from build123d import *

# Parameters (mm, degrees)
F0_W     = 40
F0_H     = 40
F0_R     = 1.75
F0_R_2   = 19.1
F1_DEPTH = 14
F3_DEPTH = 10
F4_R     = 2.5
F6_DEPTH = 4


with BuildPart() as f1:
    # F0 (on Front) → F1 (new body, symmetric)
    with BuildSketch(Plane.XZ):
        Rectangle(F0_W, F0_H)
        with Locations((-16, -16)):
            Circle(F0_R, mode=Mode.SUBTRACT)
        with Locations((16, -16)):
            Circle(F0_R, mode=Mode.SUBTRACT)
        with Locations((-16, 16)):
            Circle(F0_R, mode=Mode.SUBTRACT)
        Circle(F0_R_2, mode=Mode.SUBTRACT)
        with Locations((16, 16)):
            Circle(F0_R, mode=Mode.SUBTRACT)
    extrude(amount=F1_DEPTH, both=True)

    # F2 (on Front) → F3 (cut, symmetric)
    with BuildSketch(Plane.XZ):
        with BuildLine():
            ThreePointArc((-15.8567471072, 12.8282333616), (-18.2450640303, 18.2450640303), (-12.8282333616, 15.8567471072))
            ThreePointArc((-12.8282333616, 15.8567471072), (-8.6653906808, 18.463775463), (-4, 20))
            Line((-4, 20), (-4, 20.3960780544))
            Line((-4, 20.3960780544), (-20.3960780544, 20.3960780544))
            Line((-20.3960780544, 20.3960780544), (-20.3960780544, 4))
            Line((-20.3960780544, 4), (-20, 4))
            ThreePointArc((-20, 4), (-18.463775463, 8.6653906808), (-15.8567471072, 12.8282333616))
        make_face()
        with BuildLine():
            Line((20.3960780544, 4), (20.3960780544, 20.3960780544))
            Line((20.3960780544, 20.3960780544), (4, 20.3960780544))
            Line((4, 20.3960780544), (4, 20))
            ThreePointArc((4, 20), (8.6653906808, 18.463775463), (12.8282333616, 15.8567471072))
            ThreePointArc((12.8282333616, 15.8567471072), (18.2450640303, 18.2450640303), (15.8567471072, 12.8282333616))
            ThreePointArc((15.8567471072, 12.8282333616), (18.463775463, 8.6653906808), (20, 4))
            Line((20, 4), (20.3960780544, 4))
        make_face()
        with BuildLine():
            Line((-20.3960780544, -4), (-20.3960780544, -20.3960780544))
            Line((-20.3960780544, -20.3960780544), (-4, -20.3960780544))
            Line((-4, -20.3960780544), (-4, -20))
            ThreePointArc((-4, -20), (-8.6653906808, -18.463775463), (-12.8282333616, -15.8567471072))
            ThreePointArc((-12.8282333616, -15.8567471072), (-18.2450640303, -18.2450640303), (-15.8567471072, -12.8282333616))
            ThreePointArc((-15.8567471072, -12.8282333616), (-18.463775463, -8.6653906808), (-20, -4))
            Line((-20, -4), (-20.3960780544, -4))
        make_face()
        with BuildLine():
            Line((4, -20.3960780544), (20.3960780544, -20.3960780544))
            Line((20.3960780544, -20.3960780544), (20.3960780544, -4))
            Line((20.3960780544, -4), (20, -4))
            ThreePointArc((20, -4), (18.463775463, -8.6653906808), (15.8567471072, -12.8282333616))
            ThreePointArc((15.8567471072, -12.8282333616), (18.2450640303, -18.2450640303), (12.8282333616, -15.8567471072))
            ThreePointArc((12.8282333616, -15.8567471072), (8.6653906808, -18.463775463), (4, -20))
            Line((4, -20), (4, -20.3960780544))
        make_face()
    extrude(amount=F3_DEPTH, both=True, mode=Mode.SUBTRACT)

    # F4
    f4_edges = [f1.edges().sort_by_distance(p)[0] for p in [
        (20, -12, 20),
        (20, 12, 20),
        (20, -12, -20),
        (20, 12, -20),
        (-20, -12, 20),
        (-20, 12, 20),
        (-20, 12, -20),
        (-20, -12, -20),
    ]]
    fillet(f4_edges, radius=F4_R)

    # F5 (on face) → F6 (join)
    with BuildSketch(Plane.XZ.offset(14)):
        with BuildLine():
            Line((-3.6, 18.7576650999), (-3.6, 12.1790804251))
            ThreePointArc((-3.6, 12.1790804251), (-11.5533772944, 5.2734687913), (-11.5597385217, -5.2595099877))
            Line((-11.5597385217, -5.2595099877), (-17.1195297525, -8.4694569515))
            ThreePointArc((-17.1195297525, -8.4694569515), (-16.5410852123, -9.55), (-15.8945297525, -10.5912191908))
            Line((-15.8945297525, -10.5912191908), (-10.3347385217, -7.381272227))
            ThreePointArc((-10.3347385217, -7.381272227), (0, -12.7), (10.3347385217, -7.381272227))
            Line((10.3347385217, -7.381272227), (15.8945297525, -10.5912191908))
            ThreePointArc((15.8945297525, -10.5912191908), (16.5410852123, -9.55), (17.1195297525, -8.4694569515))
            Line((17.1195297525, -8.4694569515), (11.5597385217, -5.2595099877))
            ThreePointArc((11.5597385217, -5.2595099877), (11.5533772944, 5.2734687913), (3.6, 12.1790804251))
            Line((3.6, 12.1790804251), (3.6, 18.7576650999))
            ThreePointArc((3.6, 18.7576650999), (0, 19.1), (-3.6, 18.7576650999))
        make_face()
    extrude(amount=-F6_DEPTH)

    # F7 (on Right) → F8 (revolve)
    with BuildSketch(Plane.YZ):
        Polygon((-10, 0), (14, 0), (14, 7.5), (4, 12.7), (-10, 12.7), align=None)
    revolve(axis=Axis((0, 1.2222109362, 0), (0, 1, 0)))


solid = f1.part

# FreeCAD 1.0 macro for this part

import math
import FreeCAD as App
import Part
import Sketcher
Q = App.Units.Quantity


def edges_at(feature, points):
    """Names of the edges that pass closest to the given points."""
    edges = feature.Shape.Edges
    near = lambda p: min(range(len(edges)), key=lambda i: edges[i].distToShape(Part.Vertex(*p))[0])
    return sorted({f"Edge{near(p) + 1}" for p in points})


def add_polygon(sketch, points):
    """Adds a closed chain of lines whose ends are joined by coincident constraints."""
    first, n = sketch.GeometryCount, len(points)
    for a, b in zip(points, points[1:] + points[:1]):
        sketch.addGeometry(Part.LineSegment(App.Vector(*a, 0), App.Vector(*b, 0)), False)
    for i in range(n):
        sketch.addConstraint(Sketcher.Constraint("Coincident", first + i, 2, first + (i + 1) % n, 1))

doc = App.newDocument("Part")
body = doc.addObject("PartDesign::Body", "Body")

sketch1 = body.newObject("Sketcher::SketchObject", "Sketch")
sketch1.AttachmentSupport = (doc.getObject("XZ_Plane"), [""])
sketch1.MapMode = "FlatFace"
add_polygon(sketch1, [(-20, 20), (-20, -20), (20, -20), (20, 20)])
sketch1.addGeometry(Part.Circle(App.Vector(-16, -16, 0), App.Vector(0, 0, 1), 1.8), False)
sketch1.addGeometry(Part.Circle(App.Vector(0, 0, 0), App.Vector(0, 0, 1), 19.1), False)
sketch1.addGeometry(Part.Circle(App.Vector(16, -16, 0), App.Vector(0, 0, 1), 1.8), False)
sketch1.addGeometry(Part.Circle(App.Vector(-16, 16, 0), App.Vector(0, 0, 1), 1.8), False)
sketch1.addGeometry(Part.Circle(App.Vector(16, 16, 0), App.Vector(0, 0, 1), 1.8), False)
sketch1.addConstraint(Sketcher.Constraint("Vertical", 0))
sketch1.addConstraint(Sketcher.Constraint("Horizontal", 1))
sketch1.addConstraint(Sketcher.Constraint("Vertical", 2))
sketch1.addConstraint(Sketcher.Constraint("Horizontal", 3))
sketch1.addConstraint(Sketcher.Constraint("Coincident", 5, 3, -1, 1))
sketch1.addConstraint(Sketcher.Constraint("Equal", 4, 6))
sketch1.addConstraint(Sketcher.Constraint("Equal", 6, 7))
sketch1.addConstraint(Sketcher.Constraint("Equal", 7, 8))
sketch1.addConstraint(Sketcher.Constraint("Symmetric", 6, 3, 7, 3, -1, 1))
sketch1.addConstraint(Sketcher.Constraint("Symmetric", 4, 3, 8, 3, -1, 1))
sketch1.addConstraint(Sketcher.Constraint("Symmetric", 0, 2, 2, 2, -1, 1))
sketch1.addConstraint(Sketcher.Constraint("Symmetric", 4, 3, 6, 3, -2))
sketch1.addConstraint(Sketcher.Constraint("Equal", 3, 0))
sketch1.addConstraint(Sketcher.Constraint("Diameter", 4, Q("3.5 mm")))
sketch1.addConstraint(Sketcher.Constraint("Diameter", 5, Q("38.2 mm")))
sketch1.addConstraint(Sketcher.Constraint("DistanceX", 1, 1, 1, 2, Q("40 mm")))
sketch1.addConstraint(Sketcher.Constraint("DistanceX", 4, 3, -1, 1, Q("16 mm")))
sketch1.addConstraint(Sketcher.Constraint("DistanceY", 4, 3, -1, 1, Q("16 mm")))
pad1 = body.newObject("PartDesign::Pad", "Pad")
pad1.Profile = sketch1
pad1.Length = 28
pad1.Midplane = True

sketch2 = body.newObject("Sketcher::SketchObject", "Sketch001")
sketch2.AttachmentSupport = (doc.getObject("XZ_Plane"), [""])
sketch2.MapMode = "FlatFace"
sketch2.addGeometry(Part.ArcOfCircle(Part.Circle(App.Vector(-16, 16, 0), App.Vector(0, 0, 1), 3.17), math.radians(-3), math.radians(273)), False)
sketch2.addGeometry(Part.ArcOfCircle(Part.Circle(App.Vector(0, 0, 0), App.Vector(0, 0, 1), 20.4), math.radians(101), math.radians(129)), False)
sketch2.addGeometry(Part.LineSegment(App.Vector(-4, 20, 0), App.Vector(-4, 20.4, 0)), False)
sketch2.addGeometry(Part.LineSegment(App.Vector(-4, 20.4, 0), App.Vector(-20.4, 20.4, 0)), False)
sketch2.addGeometry(Part.LineSegment(App.Vector(-20.4, 20.4, 0), App.Vector(-20.4, 4, 0)), False)
sketch2.addGeometry(Part.LineSegment(App.Vector(-20.4, 4, 0), App.Vector(-20, 4, 0)), False)
sketch2.addGeometry(Part.ArcOfCircle(Part.Circle(App.Vector(0, 0, 0), App.Vector(0, 0, 1), 20.4), math.radians(141), math.radians(169)), False)
sketch2.addGeometry(Part.LineSegment(App.Vector(20.4, 4, 0), App.Vector(20.4, 20.4, 0)), False)
sketch2.addGeometry(Part.LineSegment(App.Vector(20.4, 20.4, 0), App.Vector(4, 20.4, 0)), False)
sketch2.addGeometry(Part.LineSegment(App.Vector(4, 20.4, 0), App.Vector(4, 20, 0)), False)
sketch2.addGeometry(Part.ArcOfCircle(Part.Circle(App.Vector(0, 0, 0), App.Vector(0, 0, 1), 20.4), math.radians(51), math.radians(79)), False)
sketch2.addGeometry(Part.ArcOfCircle(Part.Circle(App.Vector(16, 16, 0), App.Vector(0, 0, 1), 3.17), math.radians(-93), math.radians(183)), False)
sketch2.addGeometry(Part.ArcOfCircle(Part.Circle(App.Vector(0, 0, 0), App.Vector(0, 0, 1), 20.4), math.radians(11), math.radians(39)), False)
sketch2.addGeometry(Part.LineSegment(App.Vector(20, 4, 0), App.Vector(20.4, 4, 0)), False)
sketch2.addGeometry(Part.LineSegment(App.Vector(-20.4, -4, 0), App.Vector(-20.4, -20.4, 0)), False)
sketch2.addGeometry(Part.LineSegment(App.Vector(-20.4, -20.4, 0), App.Vector(-4, -20.4, 0)), False)
sketch2.addGeometry(Part.LineSegment(App.Vector(-4, -20.4, 0), App.Vector(-4, -20, 0)), False)
sketch2.addGeometry(Part.ArcOfCircle(Part.Circle(App.Vector(0, 0, 0), App.Vector(0, 0, 1), 20.4), math.radians(-129), math.radians(-101)), False)
sketch2.addGeometry(Part.ArcOfCircle(Part.Circle(App.Vector(-16, -16, 0), App.Vector(0, 0, 1), 3.17), math.radians(87), math.radians(363)), False)
sketch2.addGeometry(Part.ArcOfCircle(Part.Circle(App.Vector(0, 0, 0), App.Vector(0, 0, 1), 20.4), math.radians(-169), math.radians(-141)), False)
sketch2.addGeometry(Part.LineSegment(App.Vector(-20, -4, 0), App.Vector(-20.4, -4, 0)), False)
sketch2.addGeometry(Part.LineSegment(App.Vector(4, -20.4, 0), App.Vector(20.4, -20.4, 0)), False)
sketch2.addGeometry(Part.LineSegment(App.Vector(20.4, -20.4, 0), App.Vector(20.4, -4, 0)), False)
sketch2.addGeometry(Part.LineSegment(App.Vector(20.4, -4, 0), App.Vector(20, -4, 0)), False)
sketch2.addGeometry(Part.ArcOfCircle(Part.Circle(App.Vector(0, 0, 0), App.Vector(0, 0, 1), 20.4), math.radians(-39), math.radians(-11)), False)
sketch2.addGeometry(Part.ArcOfCircle(Part.Circle(App.Vector(16, -16, 0), App.Vector(0, 0, 1), 3.17), math.radians(177), math.radians(453)), False)
sketch2.addGeometry(Part.ArcOfCircle(Part.Circle(App.Vector(0, 0, 0), App.Vector(0, 0, 1), 20.4), math.radians(-79), math.radians(-51)), False)
sketch2.addGeometry(Part.LineSegment(App.Vector(4, -20, 0), App.Vector(4, -20.4, 0)), False)
sketch2.addConstraint(Sketcher.Constraint("Coincident", 0, 1, 1, 2))
sketch2.addConstraint(Sketcher.Constraint("Coincident", 1, 1, 2, 1))
sketch2.addConstraint(Sketcher.Constraint("Coincident", 2, 2, 3, 1))
sketch2.addConstraint(Sketcher.Constraint("Coincident", 3, 2, 4, 1))
sketch2.addConstraint(Sketcher.Constraint("Coincident", 4, 2, 5, 1))
sketch2.addConstraint(Sketcher.Constraint("Coincident", 5, 2, 6, 2))
sketch2.addConstraint(Sketcher.Constraint("Coincident", 6, 1, 0, 2))
sketch2.addConstraint(Sketcher.Constraint("Coincident", 7, 2, 8, 1))
sketch2.addConstraint(Sketcher.Constraint("Coincident", 8, 2, 9, 1))
sketch2.addConstraint(Sketcher.Constraint("Coincident", 9, 2, 10, 2))
sketch2.addConstraint(Sketcher.Constraint("Coincident", 10, 1, 11, 2))
sketch2.addConstraint(Sketcher.Constraint("Coincident", 11, 1, 12, 2))
sketch2.addConstraint(Sketcher.Constraint("Coincident", 12, 1, 13, 1))
sketch2.addConstraint(Sketcher.Constraint("Coincident", 13, 2, 7, 1))
sketch2.addConstraint(Sketcher.Constraint("Coincident", 14, 2, 15, 1))
sketch2.addConstraint(Sketcher.Constraint("Coincident", 15, 2, 16, 1))
sketch2.addConstraint(Sketcher.Constraint("Coincident", 16, 2, 17, 2))
sketch2.addConstraint(Sketcher.Constraint("Coincident", 17, 1, 18, 2))
sketch2.addConstraint(Sketcher.Constraint("Coincident", 18, 1, 19, 2))
sketch2.addConstraint(Sketcher.Constraint("Coincident", 19, 1, 20, 1))
sketch2.addConstraint(Sketcher.Constraint("Coincident", 20, 2, 14, 1))
sketch2.addConstraint(Sketcher.Constraint("Coincident", 21, 2, 22, 1))
sketch2.addConstraint(Sketcher.Constraint("Coincident", 22, 2, 23, 1))
sketch2.addConstraint(Sketcher.Constraint("Coincident", 23, 2, 24, 2))
sketch2.addConstraint(Sketcher.Constraint("Coincident", 24, 1, 25, 2))
sketch2.addConstraint(Sketcher.Constraint("Coincident", 25, 1, 26, 2))
sketch2.addConstraint(Sketcher.Constraint("Coincident", 26, 1, 27, 1))
sketch2.addConstraint(Sketcher.Constraint("Coincident", 27, 2, 21, 1))
sketch2.addConstraint(Sketcher.Constraint("Vertical", 2))
sketch2.addConstraint(Sketcher.Constraint("Horizontal", 3))
sketch2.addConstraint(Sketcher.Constraint("Vertical", 4))
sketch2.addConstraint(Sketcher.Constraint("Horizontal", 5))
sketch2.addConstraint(Sketcher.Constraint("Vertical", 7))
sketch2.addConstraint(Sketcher.Constraint("Horizontal", 8))
sketch2.addConstraint(Sketcher.Constraint("Vertical", 9))
sketch2.addConstraint(Sketcher.Constraint("Horizontal", 13))
sketch2.addConstraint(Sketcher.Constraint("Vertical", 14))
sketch2.addConstraint(Sketcher.Constraint("Horizontal", 15))
sketch2.addConstraint(Sketcher.Constraint("Vertical", 16))
sketch2.addConstraint(Sketcher.Constraint("Horizontal", 20))
sketch2.addConstraint(Sketcher.Constraint("Horizontal", 21))
sketch2.addConstraint(Sketcher.Constraint("Vertical", 22))
sketch2.addConstraint(Sketcher.Constraint("Horizontal", 23))
sketch2.addConstraint(Sketcher.Constraint("Vertical", 27))
sketch2.addConstraint(Sketcher.Constraint("Coincident", 1, 3, -1, 1))
sketch2.addConstraint(Sketcher.Constraint("Coincident", 6, 3, -1, 1))
sketch2.addConstraint(Sketcher.Constraint("Coincident", 10, 3, -1, 1))
sketch2.addConstraint(Sketcher.Constraint("Coincident", 12, 3, -1, 1))
sketch2.addConstraint(Sketcher.Constraint("Coincident", 17, 3, -1, 1))
sketch2.addConstraint(Sketcher.Constraint("Coincident", 19, 3, -1, 1))
sketch2.addConstraint(Sketcher.Constraint("Coincident", 24, 3, -1, 1))
sketch2.addConstraint(Sketcher.Constraint("Coincident", 26, 3, -1, 1))
sketch2.addConstraint(Sketcher.Constraint("Equal", 1, 6))
sketch2.addConstraint(Sketcher.Constraint("Equal", 6, 10))
sketch2.addConstraint(Sketcher.Constraint("Equal", 0, 11))
sketch2.addConstraint(Sketcher.Constraint("Equal", 10, 12))
sketch2.addConstraint(Sketcher.Constraint("Equal", 12, 17))
sketch2.addConstraint(Sketcher.Constraint("Equal", 11, 18))
sketch2.addConstraint(Sketcher.Constraint("Equal", 17, 19))
sketch2.addConstraint(Sketcher.Constraint("Equal", 19, 24))
sketch2.addConstraint(Sketcher.Constraint("Equal", 18, 25))
sketch2.addConstraint(Sketcher.Constraint("Equal", 24, 26))
sketch2.addConstraint(Sketcher.Constraint("Symmetric", 11, 3, 18, 3, -1, 1))
sketch2.addConstraint(Sketcher.Constraint("Symmetric", 0, 3, 25, 3, -1, 1))
sketch2.addConstraint(Sketcher.Constraint("Symmetric", 7, 2, 14, 2, -1, 1))
sketch2.addConstraint(Sketcher.Constraint("Symmetric", 3, 2, 21, 2, -1, 1))
sketch2.addConstraint(Sketcher.Constraint("Symmetric", 0, 3, 11, 3, -2))
sketch2.addConstraint(Sketcher.Constraint("Symmetric", 3, 2, 7, 2, -2))
sketch2.addConstraint(Sketcher.Constraint("Horizontal", 1, 1, 9, 2))
sketch2.addConstraint(Sketcher.Constraint("Horizontal", 5, 2, 12, 1))
sketch2.addConstraint(Sketcher.Constraint("Horizontal", 20, 2, 22, 2))
sketch2.addConstraint(Sketcher.Constraint("Horizontal", 16, 2, 26, 1))
sketch2.addConstraint(Sketcher.Constraint("Vertical", 2, 2, 15, 2))
sketch2.addConstraint(Sketcher.Constraint("Vertical", 5, 2, 19, 1))
sketch2.addConstraint(Sketcher.Constraint("Equal", 23, 2))
sketch2.addConstraint(Sketcher.Constraint("Equal", 21, 4))
sketch2.addConstraint(Sketcher.Constraint("DistanceX", 0, 3, -1, 1, Q("16 mm")))
sketch2.addConstraint(Sketcher.Constraint("DistanceY", -1, 1, 0, 3, Q("16 mm")))
sketch2.addConstraint(Sketcher.Constraint("DistanceX", 1, 1, -1, 1, Q("4 mm")))
sketch2.addConstraint(Sketcher.Constraint("DistanceY", -1, 1, 1, 1, Q("20 mm")))
sketch2.addConstraint(Sketcher.Constraint("Radius", 0, Q("3.175 mm")))
sketch2.addConstraint(Sketcher.Constraint("DistanceX", 3, 2, 3, 1, Q("16.396078 mm")))
pocket1 = body.newObject("PartDesign::Pocket", "Pocket")
pocket1.Profile = sketch2
pocket1.Length = 20
pocket1.Midplane = True
doc.recompute()

fillet = body.newObject("PartDesign::Fillet", "Fillet")
fillet.Base = (pocket1, edges_at(pocket1, [
    (20, -12, 20),
    (20, 12, 20),
    (20, -12, -20),
    (20, 12, -20),
    (-20, -12, 20),
    (-20, 12, 20),
    (-20, 12, -20),
    (-20, -12, -20),
]))
fillet.Radius = 2.5

sketch3 = body.newObject("Sketcher::SketchObject", "Sketch002")
sketch3.AttachmentSupport = (doc.getObject("XZ_Plane"), [""])
sketch3.MapMode = "FlatFace"
sketch3.AttachmentOffset = App.Placement(App.Vector(0, 0, 14), App.Rotation())
sketch3.addGeometry(Part.LineSegment(App.Vector(-3.6, 18.8, 0), App.Vector(-3.6, 12.2, 0)), False)
sketch3.addGeometry(Part.ArcOfCircle(Part.Circle(App.Vector(0, 0, 0), App.Vector(0, 0, 1), 12.7), math.radians(106), math.radians(204)), False)
sketch3.addGeometry(Part.LineSegment(App.Vector(-11.6, -5.3, 0), App.Vector(-17.1, -8.5, 0)), False)
sketch3.addGeometry(Part.ArcOfCircle(Part.Circle(App.Vector(0, 0, 0), App.Vector(0, 0, 1), 19.1), math.radians(-153.68), math.radians(-146.32)), False)
sketch3.addGeometry(Part.LineSegment(App.Vector(-15.9, -10.6, 0), App.Vector(-10.3, -7.4, 0)), False)
sketch3.addGeometry(Part.ArcOfCircle(Part.Circle(App.Vector(0, 0, 0), App.Vector(0, 0, 1), 12.7), math.radians(-144), math.radians(-36)), False)
sketch3.addGeometry(Part.LineSegment(App.Vector(10.3, -7.4, 0), App.Vector(15.9, -10.6, 0)), False)
sketch3.addGeometry(Part.ArcOfCircle(Part.Circle(App.Vector(0, 0, 0), App.Vector(0, 0, 1), 19.1), math.radians(-33.68), math.radians(-26.32)), False)
sketch3.addGeometry(Part.LineSegment(App.Vector(17.1, -8.5, 0), App.Vector(11.6, -5.3, 0)), False)
sketch3.addGeometry(Part.ArcOfCircle(Part.Circle(App.Vector(0, 0, 0), App.Vector(0, 0, 1), 12.7), math.radians(-24), math.radians(74)), False)
sketch3.addGeometry(Part.LineSegment(App.Vector(3.6, 12.2, 0), App.Vector(3.6, 18.8, 0)), False)
sketch3.addGeometry(Part.ArcOfCircle(Part.Circle(App.Vector(0, 0, 0), App.Vector(0, 0, 1), 19.1), math.radians(79), math.radians(101)), False)
sketch3.addConstraint(Sketcher.Constraint("Coincident", 0, 2, 1, 1))
sketch3.addConstraint(Sketcher.Constraint("Coincident", 1, 2, 2, 1))
sketch3.addConstraint(Sketcher.Constraint("Coincident", 2, 2, 3, 1))
sketch3.addConstraint(Sketcher.Constraint("Coincident", 3, 2, 4, 1))
sketch3.addConstraint(Sketcher.Constraint("Coincident", 4, 2, 5, 1))
sketch3.addConstraint(Sketcher.Constraint("Coincident", 5, 2, 6, 1))
sketch3.addConstraint(Sketcher.Constraint("Coincident", 6, 2, 7, 1))
sketch3.addConstraint(Sketcher.Constraint("Coincident", 7, 2, 8, 1))
sketch3.addConstraint(Sketcher.Constraint("Coincident", 8, 2, 9, 1))
sketch3.addConstraint(Sketcher.Constraint("Coincident", 9, 2, 10, 1))
sketch3.addConstraint(Sketcher.Constraint("Coincident", 10, 2, 11, 1))
sketch3.addConstraint(Sketcher.Constraint("Coincident", 11, 2, 0, 1))
sketch3.addConstraint(Sketcher.Constraint("Vertical", 0))
sketch3.addConstraint(Sketcher.Constraint("Vertical", 10))
sketch3.addConstraint(Sketcher.Constraint("Coincident", 1, 3, -1, 1))
sketch3.addConstraint(Sketcher.Constraint("Coincident", 3, 3, -1, 1))
sketch3.addConstraint(Sketcher.Constraint("Coincident", 5, 3, -1, 1))
sketch3.addConstraint(Sketcher.Constraint("Coincident", 7, 3, -1, 1))
sketch3.addConstraint(Sketcher.Constraint("Coincident", 9, 3, -1, 1))
sketch3.addConstraint(Sketcher.Constraint("Coincident", 11, 3, -1, 1))
sketch3.addConstraint(Sketcher.Constraint("Equal", 1, 5))
sketch3.addConstraint(Sketcher.Constraint("Equal", 3, 7))
sketch3.addConstraint(Sketcher.Constraint("Equal", 5, 9))
sketch3.addConstraint(Sketcher.Constraint("Equal", 7, 11))
sketch3.addConstraint(Sketcher.Constraint("Parallel", 2, 4))
sketch3.addConstraint(Sketcher.Constraint("Parallel", 6, 8))
sketch3.addConstraint(Sketcher.Constraint("Horizontal", 4, 2, 5, 2))
sketch3.addConstraint(Sketcher.Constraint("Horizontal", 3, 2, 6, 2))
sketch3.addConstraint(Sketcher.Constraint("Horizontal", 2, 2, 7, 2))
sketch3.addConstraint(Sketcher.Constraint("Horizontal", 0, 2, 9, 2))
sketch3.addConstraint(Sketcher.Constraint("Equal", 2, 4))
sketch3.addConstraint(Sketcher.Constraint("Radius", 1, Q("12.7 mm")))
sketch3.addConstraint(Sketcher.Constraint("Radius", 3, Q("19.1 mm")))
sketch3.addConstraint(Sketcher.Constraint("Angle", 2, Q("-150 deg")))
sketch3.addConstraint(Sketcher.Constraint("DistanceX", 0, 2, -1, 1, Q("3.6 mm")))
sketch3.addConstraint(Sketcher.Constraint("DistanceX", 2, 2, 3, 2, Q("1.225 mm")))
pad2 = body.newObject("PartDesign::Pad", "Pad001")
pad2.Profile = sketch3
pad2.Length = 4
pad2.Reversed = True

sketch4 = body.newObject("Sketcher::SketchObject", "Sketch003")
sketch4.AttachmentSupport = (doc.getObject("YZ_Plane"), [""])
sketch4.MapMode = "FlatFace"
add_polygon(sketch4, [(-10, 0), (14, 0), (14, 8), (4, 13), (-10, 13)])
sketch4.addConstraint(Sketcher.Constraint("Horizontal", 0))
sketch4.addConstraint(Sketcher.Constraint("Vertical", 1))
sketch4.addConstraint(Sketcher.Constraint("Horizontal", 3))
sketch4.addConstraint(Sketcher.Constraint("Vertical", 4))
sketch4.addConstraint(Sketcher.Constraint("PointOnObject", 0, 2, -1))
sketch4.addConstraint(Sketcher.Constraint("DistanceX", 0, 1, 0, 2, Q("24 mm")))
sketch4.addConstraint(Sketcher.Constraint("DistanceX", 3, 2, 3, 1, Q("14 mm")))
sketch4.addConstraint(Sketcher.Constraint("DistanceY", 1, 1, 1, 2, Q("7.5 mm")))
sketch4.addConstraint(Sketcher.Constraint("DistanceY", 4, 2, 4, 1, Q("12.7 mm")))
sketch4.addConstraint(Sketcher.Constraint("DistanceX", -1, 1, 0, 2, Q("14 mm")))
revolution = body.newObject("PartDesign::Revolution", "Revolution")
revolution.Profile = sketch4
revolution.ReferenceAxis = (sketch4, ["H_Axis"])
revolution.Angle = 360

doc.recompute()
